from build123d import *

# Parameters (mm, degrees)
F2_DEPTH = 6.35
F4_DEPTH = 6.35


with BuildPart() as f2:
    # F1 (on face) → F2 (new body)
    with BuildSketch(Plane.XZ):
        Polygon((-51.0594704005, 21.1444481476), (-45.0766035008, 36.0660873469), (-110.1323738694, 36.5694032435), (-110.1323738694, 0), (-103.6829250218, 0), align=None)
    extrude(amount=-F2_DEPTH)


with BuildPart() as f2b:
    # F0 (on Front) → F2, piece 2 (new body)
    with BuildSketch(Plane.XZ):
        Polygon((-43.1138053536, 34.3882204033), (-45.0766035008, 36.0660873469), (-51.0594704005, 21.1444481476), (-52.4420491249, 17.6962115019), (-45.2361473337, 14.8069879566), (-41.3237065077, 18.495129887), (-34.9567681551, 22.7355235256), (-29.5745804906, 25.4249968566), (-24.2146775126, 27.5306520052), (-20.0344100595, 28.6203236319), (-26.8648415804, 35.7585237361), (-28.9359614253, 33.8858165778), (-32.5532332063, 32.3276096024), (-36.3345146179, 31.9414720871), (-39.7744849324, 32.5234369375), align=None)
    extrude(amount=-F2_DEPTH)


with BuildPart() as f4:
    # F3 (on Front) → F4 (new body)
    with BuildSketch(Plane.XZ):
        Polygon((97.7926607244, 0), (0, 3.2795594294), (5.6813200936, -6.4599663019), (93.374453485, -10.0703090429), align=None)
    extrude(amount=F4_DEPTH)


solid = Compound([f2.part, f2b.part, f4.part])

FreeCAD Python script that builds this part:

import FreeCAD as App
import Part
import Sketcher
Q = App.Units.Quantity


def add_polygon(sketch, points):
    """Adds a closed chain of lines whose ends are joined by coincident constraints."""
    first, n = sketch.GeometryCount, len(points)
    for a, b in zip(points, points[1:] + points[:1]):
        sketch.addGeometry(Part.LineSegment(App.Vector(*a, 0), App.Vector(*b, 0)), False)
    for i in range(n):
        sketch.addConstraint(Sketcher.Constraint("Coincident", first + i, 2, first + (i + 1) % n, 1))

doc = App.newDocument("Part")
body = doc.addObject("PartDesign::Body", "Body")

sketch1 = body.newObject("Sketcher::SketchObject", "Sketch")
sketch1.AttachmentSupport = (doc.getObject("XZ_Plane"), [""])
sketch1.MapMode = "FlatFace"
add_polygon(sketch1, [(-51, 21), (-45, 36), (-110, 37), (-110, 0), (-104, 0)])
sketch1.addConstraint([
    Sketcher.Constraint("Vertical", 2),
    Sketcher.Constraint("Horizontal", 3),
    Sketcher.Constraint("PointOnObject", 2, 2, -1),
    Sketcher.Constraint("DistanceX", 3, 1, 3, 2, 6.449449),
    Sketcher.Constraint("Distance", 0, 16.076381),
    Sketcher.Constraint("Distance", 4, 56.712571),
    Sketcher.Constraint("DistanceY", 2, 2, 2, 1, 36.569403),
    Sketcher.Constraint("DistanceX", 4, 2, -1, 1, 51.05947),
    Sketcher.Constraint("DistanceY", -1, 1, 4, 2, 21.144448),
    Sketcher.Constraint("DistanceX", 1, 2, 0, 2, 65.05577),
])
pad1 = body.newObject("PartDesign::Pad", "Pad")
pad1.Profile = sketch1
pad1.Length = Q("0.25 in")
pad1.Reversed = True
body2 = doc.addObject("PartDesign::Body", "Body001")

sketch2 = body2.newObject("Sketcher::SketchObject", "Sketch001")
sketch2.AttachmentSupport = (doc.getObject("XZ_Plane001"), [""])
sketch2.MapMode = "FlatFace"
add_polygon(sketch2, [(-43.1, 34.4), (-45.1, 36.1), (-51.1, 21.1), (-52.4, 17.7), (-45.2, 14.8), (-41.3, 18.5), (-35, 22.7), (-29.6, 25.4), (-24.2, 27.5), (-20, 28.6), (-26.9, 35.8), (-28.9, 33.9), (-32.6, 32.3), (-36.3, 31.9), (-39.8, 32.5)])
sketch2.addConstraint([
    Sketcher.Constraint("Parallel", 1, 2),
    Sketcher.Constraint("Perpendicular", 2, 3),
    Sketcher.Constraint("DistanceX", 3, 2, 5, 2, Q("0.4047 in")),
    Sketcher.Constraint("DistanceY", 6, 2, 7, 2, Q("0.0828998 in")),
    Sketcher.Constraint("DistanceX", 2, 2, 3, 2, 7.205902),
    Sketcher.Constraint("DistanceY", 3, 2, 0, 2, 21.259099),
    Sketcher.Constraint("DistanceY", 5, 2, 8, 2, 5.8848),
    Sketcher.Constraint("DistanceY", 8, 2, 9, 2, 7.1382),
    Sketcher.Constraint("DistanceX", 0, 2, 14, 2, 1.962798),
    Sketcher.Constraint("Distance", 0, 2.582211),
    Sketcher.Constraint("Distance", 1, 16.076381),
    Sketcher.Constraint("Distance", 5, 7.649761),
    Sketcher.Constraint("Distance", 9, 9.879711),
    Sketcher.Constraint("Distance", 11, 3.938612),
    Sketcher.Constraint("Distance", 13, 3.488851),
    Sketcher.Constraint("Distance", 14, 3.824719),
    Sketcher.Constraint("DistanceX", 1, 2, -1, 1, 51.05947),
    Sketcher.Constraint("DistanceY", -1, 1, 1, 2, 21.144448),
    Sketcher.Constraint("DistanceX", 2, 2, -1, 1, 52.442049),
    Sketcher.Constraint("DistanceY", -1, 1, 4, 2, 18.49513),
    Sketcher.Constraint("DistanceX", 6, 2, -1, 1, 29.57458),
    Sketcher.Constraint("DistanceX", 8, 2, -1, 1, 20.03441),
    Sketcher.Constraint("DistanceX", 10, 2, -1, 1, 28.935961),
    Sketcher.Constraint("DistanceY", -1, 1, 11, 2, 32.32761),
    Sketcher.Constraint("DistanceX", 3, 2, 4, 2, 3.912441),
    Sketcher.Constraint("DistanceY", 6, 2, 0, 2, 10.64109),
    Sketcher.Constraint("DistanceX", 5, 2, 7, 2, 10.742091),
    Sketcher.Constraint("DistanceY", 6, 2, 10, 2, 8.46082),
    Sketcher.Constraint("DistanceX", 12, 2, 11, 2, 3.781281),
    Sketcher.Constraint("DistanceY", 5, 2, 12, 2, 9.205949),
])
pad2 = body2.newObject("PartDesign::Pad", "Pad001")
pad2.Profile = sketch2
pad2.Length = Q("0.25 in")
pad2.Reversed = True
body3 = doc.addObject("PartDesign::Body", "Body002")

sketch3 = body3.newObject("Sketcher::SketchObject", "Sketch002")
sketch3.AttachmentSupport = (doc.getObject("XZ_Plane002"), [""])
sketch3.MapMode = "FlatFace"
add_polygon(sketch3, [(98, 0), (0, 3), (6, -6), (93, -10)])
sketch3.addConstraint([
    Sketcher.Constraint("PointOnObject", 0, 2, -2),
    Sketcher.Constraint("PointOnObject", 3, 2, -1),
    Sketcher.Constraint("Distance", 1, 11.275449),
    Sketcher.Constraint("Distance", 2, 87.767421),
    Sketcher.Constraint("DistanceY", -1, 1, 0, 2, 3.279559),
    Sketcher.Constraint("DistanceX", -1, 1, 1, 2, 5.68132),
    Sketcher.Constraint("DistanceY", 2, 2, -1, 1, 10.070309),
    Sketcher.Constraint("DistanceX", -1, 1, 3, 2, 97.792661),
])
pad3 = body3.newObject("PartDesign::Pad", "Pad002")
pad3.Profile = sketch3
pad3.Length = Q("0.25 in")

doc.recompute()
